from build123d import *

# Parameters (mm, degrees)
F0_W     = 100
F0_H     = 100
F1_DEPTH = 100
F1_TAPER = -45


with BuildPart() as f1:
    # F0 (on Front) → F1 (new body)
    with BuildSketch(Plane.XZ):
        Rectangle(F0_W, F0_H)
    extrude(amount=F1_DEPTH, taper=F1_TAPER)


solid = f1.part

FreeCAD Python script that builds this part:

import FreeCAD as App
import Part
import Sketcher

V = App.Vector
Q = App.Units.Quantity

doc = App.newDocument("Part")
body = doc.addObject("PartDesign::Body", "Body")

# Sketch on XZ plane
sketch1 = body.newObject("Sketcher::SketchObject", "Sketch")
sketch1.AttachmentSupport = (doc.getObject("XZ_Plane"), [""])
sketch1.MapMode = "FlatFace"
sketch1.addGeometry([
    Part.LineSegment(V(-50, 50, 0), V(-50, -50, 0)),
    Part.LineSegment(V(-50, -50, 0), V(50, -50, 0)),
    Part.LineSegment(V(50, -50, 0), V(50, 50, 0)),
    Part.LineSegment(V(50, 50, 0), V(-50, 50, 0)),
], False)
sketch1.addConstraint([
    Sketcher.Constraint("Coincident", 0, 2, 1, 1),
    Sketcher.Constraint("Coincident", 1, 2, 2, 1),
    Sketcher.Constraint("Coincident", 2, 2, 3, 1),
    Sketcher.Constraint("Coincident", 3, 2, 0, 1),
    Sketcher.Constraint("Vertical", 0),
    Sketcher.Constraint("Horizontal", 1),
    Sketcher.Constraint("Vertical", 2),
    Sketcher.Constraint("Horizontal", 3),
    Sketcher.Constraint("Symmetric", 0, 2, 2, 2, -1, 1),
    Sketcher.Constraint("Equal", 3, 0),
    Sketcher.Constraint("DistanceX", 1, 1, 1, 2, Q("100 mm")),
])
pad1 = body.newObject("PartDesign::Pad", "Pad")
pad1.Profile = sketch1
pad1.Length = 100
pad1.TaperAngle = 45

doc.recompute()
